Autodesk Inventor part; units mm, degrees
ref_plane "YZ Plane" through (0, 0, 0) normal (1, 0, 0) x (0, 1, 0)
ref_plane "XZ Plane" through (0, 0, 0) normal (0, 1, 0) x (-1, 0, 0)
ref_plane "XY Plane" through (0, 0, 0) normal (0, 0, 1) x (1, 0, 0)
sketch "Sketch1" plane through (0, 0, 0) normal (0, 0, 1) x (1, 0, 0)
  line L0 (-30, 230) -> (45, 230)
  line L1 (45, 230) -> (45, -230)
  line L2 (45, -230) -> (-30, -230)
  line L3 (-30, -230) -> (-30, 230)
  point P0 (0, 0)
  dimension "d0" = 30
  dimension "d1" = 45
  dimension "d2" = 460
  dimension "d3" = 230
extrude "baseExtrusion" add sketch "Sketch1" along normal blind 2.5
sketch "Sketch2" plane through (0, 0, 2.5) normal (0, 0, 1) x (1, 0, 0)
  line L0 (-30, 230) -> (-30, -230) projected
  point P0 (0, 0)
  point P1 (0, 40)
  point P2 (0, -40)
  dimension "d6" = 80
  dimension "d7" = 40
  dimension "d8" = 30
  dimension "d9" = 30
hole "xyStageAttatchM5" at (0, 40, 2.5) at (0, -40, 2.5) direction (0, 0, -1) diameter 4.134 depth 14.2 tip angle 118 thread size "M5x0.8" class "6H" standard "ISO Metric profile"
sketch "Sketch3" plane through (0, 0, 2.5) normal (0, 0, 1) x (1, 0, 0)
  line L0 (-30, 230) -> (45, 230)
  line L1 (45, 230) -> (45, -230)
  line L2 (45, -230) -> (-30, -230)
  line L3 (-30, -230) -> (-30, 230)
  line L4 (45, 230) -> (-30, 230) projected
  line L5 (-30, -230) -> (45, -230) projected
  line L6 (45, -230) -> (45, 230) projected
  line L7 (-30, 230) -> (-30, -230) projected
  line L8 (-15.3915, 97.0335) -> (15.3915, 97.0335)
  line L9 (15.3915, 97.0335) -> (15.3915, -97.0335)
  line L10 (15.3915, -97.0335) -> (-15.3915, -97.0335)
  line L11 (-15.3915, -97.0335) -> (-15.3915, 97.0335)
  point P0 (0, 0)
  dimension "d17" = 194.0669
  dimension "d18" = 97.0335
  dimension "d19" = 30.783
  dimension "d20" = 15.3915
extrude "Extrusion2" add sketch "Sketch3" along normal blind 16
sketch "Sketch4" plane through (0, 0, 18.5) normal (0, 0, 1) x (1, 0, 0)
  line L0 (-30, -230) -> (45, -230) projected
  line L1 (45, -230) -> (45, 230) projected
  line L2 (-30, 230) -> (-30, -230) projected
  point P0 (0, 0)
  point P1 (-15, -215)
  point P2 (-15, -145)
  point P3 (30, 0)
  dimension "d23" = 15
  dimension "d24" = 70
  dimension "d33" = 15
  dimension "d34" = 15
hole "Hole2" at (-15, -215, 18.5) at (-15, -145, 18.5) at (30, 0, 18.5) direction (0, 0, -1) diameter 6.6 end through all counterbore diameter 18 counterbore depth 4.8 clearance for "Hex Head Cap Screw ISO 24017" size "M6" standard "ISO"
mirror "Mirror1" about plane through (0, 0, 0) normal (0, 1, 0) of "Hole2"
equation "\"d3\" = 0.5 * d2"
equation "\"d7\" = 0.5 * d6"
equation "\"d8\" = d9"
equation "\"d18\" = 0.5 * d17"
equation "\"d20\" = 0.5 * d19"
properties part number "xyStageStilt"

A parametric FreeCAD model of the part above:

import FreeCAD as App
import Part
import Sketcher

V = App.Vector

doc = App.newDocument("Part")
params = doc.addObject("Spreadsheet::Sheet", "Params")
for row, (alias, value) in enumerate([
    ("sketch1_height", "460 mm"),
    ("pad1_length", "2.5 mm"),
    ("hole_diameter", "4.134 mm"),
    ("hole_depth", "14.2 mm"),
    ("sketch3_width", "75 mm"),
    ("sketch3_height", "460 mm"),
    ("pad2_length", "16 mm"),
    ("sketch4_diameter", "6.6 mm"),
    ("hole2_diameter", "6.6 mm"),
    ("hole2_cbore_diameter", "18 mm"),
    ("hole2_cbore_depth", "4.8 mm"),
], start=1):
    params.set(f"A{row}", alias)
    params.set(f"B{row}", "=" + value)
    params.setAlias(f"B{row}", alias)

body = doc.addObject("PartDesign::Body", "Body")

# Sketch on XY plane
sketch1 = body.newObject("Sketcher::SketchObject", "Sketch")
sketch1.AttachmentSupport = (doc.getObject("XY_Plane"), [""])
sketch1.MapMode = "FlatFace"
sketch1.addGeometry(Part.LineSegment(V(45, 230, 0), V(-30, 230, 0)), False)
sketch1.addGeometry(Part.LineSegment(V(-30, 230, 0), V(-30, -230, 0)), False)
sketch1.addGeometry(Part.LineSegment(V(-30, -230, 0), V(45, -230, 0)), False)
sketch1.addGeometry(Part.LineSegment(V(45, -230, 0), V(45, 230, 0)), False)
sketch1.addConstraint(Sketcher.Constraint("Coincident", 0, 2, 1, 1))
sketch1.addConstraint(Sketcher.Constraint("Coincident", 1, 2, 2, 1))
sketch1.addConstraint(Sketcher.Constraint("Coincident", 2, 2, 3, 1))
sketch1.addConstraint(Sketcher.Constraint("Coincident", 3, 2, 0, 1))
sketch1.addConstraint(Sketcher.Constraint("Horizontal", 0))
sketch1.addConstraint(Sketcher.Constraint("Vertical", 1))
sketch1.addConstraint(Sketcher.Constraint("Horizontal", 2))
sketch1.addConstraint(Sketcher.Constraint("Vertical", 3))
sketch1.addConstraint(Sketcher.Constraint("DistanceY", 1, 2, 1, 1, 460.0))
sketch1.addConstraint(Sketcher.Constraint("DistanceX", 0, 2, -1, 1, 30.0))
sketch1.addConstraint(Sketcher.Constraint("DistanceY", -1, 1, 0, 2, 230.0))
sketch1.addConstraint(Sketcher.Constraint("DistanceX", -1, 1, 2, 2, 45.0))
sketch1.setExpression("Constraints[8]", "Params.sketch1_height")
pad1 = body.newObject("PartDesign::Pad", "Pad")
pad1.Profile = sketch1
pad1.setExpression("Length", "Params.pad1_length")

# Sketch on XY plane
sketch2 = body.newObject("Sketcher::SketchObject", "Sketch001")
sketch2.AttachmentSupport = (doc.getObject("XY_Plane"), [""])
sketch2.MapMode = "FlatFace"
sketch2.AttachmentOffset = App.Placement(V(0, 0, 2.5), App.Rotation())
sketch2.addGeometry(Part.Circle(V(0, 40, 0), V(0, 0, 1), 2.1), False)
sketch2.addGeometry(Part.Circle(V(0, -40, 0), V(0, 0, 1), 2.1), False)
sketch2.addConstraint(Sketcher.Constraint("Equal", 0, 1))
sketch2.addConstraint(Sketcher.Constraint("Symmetric", 0, 3, 1, 3, -1, 1))
sketch2.addConstraint(Sketcher.Constraint("PointOnObject", 0, 3, -2))
sketch2.addConstraint(Sketcher.Constraint("Diameter", 0, 4.134))
sketch2.addConstraint(Sketcher.Constraint("DistanceY", -1, 1, 0, 3, 40.0))
doc.recompute()
hole = body.newObject("PartDesign::Hole", "Hole")
hole.Profile = sketch2
hole.ThreadType = "None"
hole.setExpression("Diameter", "Params.hole_diameter")
hole.DepthType = "Dimension"
hole.setExpression("Depth", "Params.hole_depth")
hole.DrillPoint = "Angled"
hole.DrillPointAngle = 118

# Sketch on XY plane
sketch3 = body.newObject("Sketcher::SketchObject", "Sketch002")
sketch3.AttachmentSupport = (doc.getObject("XY_Plane"), [""])
sketch3.MapMode = "FlatFace"
sketch3.AttachmentOffset = App.Placement(V(0, 0, 2.5), App.Rotation())
sketch3.addGeometry(Part.LineSegment(V(45, 230, 0), V(-30, 230, 0)), False)
sketch3.addGeometry(Part.LineSegment(V(-30, 230, 0), V(-30, -230, 0)), False)
sketch3.addGeometry(Part.LineSegment(V(-30, -230, 0), V(45, -230, 0)), False)
sketch3.addGeometry(Part.LineSegment(V(45, -230, 0), V(45, 230, 0)), False)
sketch3.addGeometry(Part.LineSegment(V(-15, -97, 0), V(-15, 97, 0)), False)
sketch3.addGeometry(Part.LineSegment(V(-15, 97, 0), V(15, 97, 0)), False)
sketch3.addGeometry(Part.LineSegment(V(15, 97, 0), V(15, -97, 0)), False)
sketch3.addGeometry(Part.LineSegment(V(15, -97, 0), V(-15, -97, 0)), False)
sketch3.addConstraint(Sketcher.Constraint("Coincident", 0, 2, 1, 1))
sketch3.addConstraint(Sketcher.Constraint("Coincident", 1, 2, 2, 1))
sketch3.addConstraint(Sketcher.Constraint("Coincident", 2, 2, 3, 1))
sketch3.addConstraint(Sketcher.Constraint("Coincident", 3, 2, 0, 1))
sketch3.addConstraint(Sketcher.Constraint("Coincident", 4, 2, 5, 1))
sketch3.addConstraint(Sketcher.Constraint("Coincident", 5, 2, 6, 1))
sketch3.addConstraint(Sketcher.Constraint("Coincident", 6, 2, 7, 1))
sketch3.addConstraint(Sketcher.Constraint("Coincident", 7, 2, 4, 1))
sketch3.addConstraint(Sketcher.Constraint("Horizontal", 0))
sketch3.addConstraint(Sketcher.Constraint("Vertical", 1))
sketch3.addConstraint(Sketcher.Constraint("Horizontal", 2))
sketch3.addConstraint(Sketcher.Constraint("Vertical", 3))
sketch3.addConstraint(Sketcher.Constraint("Vertical", 4))
sketch3.addConstraint(Sketcher.Constraint("Horizontal", 5))
sketch3.addConstraint(Sketcher.Constraint("Vertical", 6))
sketch3.addConstraint(Sketcher.Constraint("Horizontal", 7))
sketch3.addConstraint(Sketcher.Constraint("Symmetric", 4, 2, 6, 2, -1, 1))
sketch3.addConstraint(Sketcher.Constraint("DistanceX", 0, 2, 0, 1, 75.0))
sketch3.addConstraint(Sketcher.Constraint("DistanceX", 5, 1, 5, 2, 30.783))
sketch3.addConstraint(Sketcher.Constraint("DistanceY", 1, 2, 1, 1, 460.0))
sketch3.addConstraint(Sketcher.Constraint("DistanceY", 4, 1, 4, 2, 194.067))
sketch3.addConstraint(Sketcher.Constraint("DistanceX", 0, 2, -1, 1, 30.0))
sketch3.addConstraint(Sketcher.Constraint("DistanceY", -1, 1, 0, 2, 230.0))
sketch3.setExpression("Constraints[17]", "Params.sketch3_width")
sketch3.setExpression("Constraints[19]", "Params.sketch3_height")
pad2 = body.newObject("PartDesign::Pad", "Pad001")
pad2.Profile = sketch3
pad2.setExpression("Length", "Params.pad2_length")

# Sketch on XY plane
sketch4 = body.newObject("Sketcher::SketchObject", "Sketch003")
sketch4.AttachmentSupport = (doc.getObject("XY_Plane"), [""])
sketch4.MapMode = "FlatFace"
sketch4.AttachmentOffset = App.Placement(V(0, 0, 18.5), App.Rotation())
sketch4.addGeometry(Part.Circle(V(-15, -215, 0), V(0, 0, 1), 3.3), False)
sketch4.addGeometry(Part.Circle(V(-15, -145, 0), V(0, 0, 1), 3.3), False)
sketch4.addGeometry(Part.Circle(V(30, 0, 0), V(0, 0, 1), 3.3), False)
sketch4.addConstraint(Sketcher.Constraint("Equal", 0, 1))
sketch4.addConstraint(Sketcher.Constraint("Equal", 1, 2))
sketch4.addConstraint(Sketcher.Constraint("PointOnObject", 2, 3, -1))
sketch4.addConstraint(Sketcher.Constraint("Vertical", 0, 3, 1, 3))
sketch4.addConstraint(Sketcher.Constraint("Diameter", 0, 6.6))
sketch4.addConstraint(Sketcher.Constraint("DistanceX", 0, 3, -1, 1, 15.0))
sketch4.addConstraint(Sketcher.Constraint("DistanceY", 0, 3, -1, 1, 215.0))
sketch4.addConstraint(Sketcher.Constraint("DistanceY", 1, 3, -1, 1, 145.0))
sketch4.addConstraint(Sketcher.Constraint("DistanceX", -1, 1, 2, 3, 30.0))
sketch4.setExpression("Constraints[4]", "Params.sketch4_diameter")
doc.recompute()
hole2 = body.newObject("PartDesign::Hole", "Hole001")
hole2.Profile = sketch4
hole2.ThreadType = "None"
hole2.setExpression("Diameter", "Params.hole2_diameter")
hole2.DepthType = "ThroughAll"
hole2.HoleCutType = "Counterbore"
hole2.setExpression("HoleCutDiameter", "Params.hole2_cbore_diameter")
hole2.setExpression("HoleCutDepth", "Params.hole2_cbore_depth")
doc.recompute()

mirrored = body.newObject("PartDesign::Mirrored", "Mirrored")
mirrored.Originals = [hole2]
mirrored.MirrorPlane = (doc.getObject("XZ_Plane"), [""])
body.Tip = mirrored

doc.recompute()
